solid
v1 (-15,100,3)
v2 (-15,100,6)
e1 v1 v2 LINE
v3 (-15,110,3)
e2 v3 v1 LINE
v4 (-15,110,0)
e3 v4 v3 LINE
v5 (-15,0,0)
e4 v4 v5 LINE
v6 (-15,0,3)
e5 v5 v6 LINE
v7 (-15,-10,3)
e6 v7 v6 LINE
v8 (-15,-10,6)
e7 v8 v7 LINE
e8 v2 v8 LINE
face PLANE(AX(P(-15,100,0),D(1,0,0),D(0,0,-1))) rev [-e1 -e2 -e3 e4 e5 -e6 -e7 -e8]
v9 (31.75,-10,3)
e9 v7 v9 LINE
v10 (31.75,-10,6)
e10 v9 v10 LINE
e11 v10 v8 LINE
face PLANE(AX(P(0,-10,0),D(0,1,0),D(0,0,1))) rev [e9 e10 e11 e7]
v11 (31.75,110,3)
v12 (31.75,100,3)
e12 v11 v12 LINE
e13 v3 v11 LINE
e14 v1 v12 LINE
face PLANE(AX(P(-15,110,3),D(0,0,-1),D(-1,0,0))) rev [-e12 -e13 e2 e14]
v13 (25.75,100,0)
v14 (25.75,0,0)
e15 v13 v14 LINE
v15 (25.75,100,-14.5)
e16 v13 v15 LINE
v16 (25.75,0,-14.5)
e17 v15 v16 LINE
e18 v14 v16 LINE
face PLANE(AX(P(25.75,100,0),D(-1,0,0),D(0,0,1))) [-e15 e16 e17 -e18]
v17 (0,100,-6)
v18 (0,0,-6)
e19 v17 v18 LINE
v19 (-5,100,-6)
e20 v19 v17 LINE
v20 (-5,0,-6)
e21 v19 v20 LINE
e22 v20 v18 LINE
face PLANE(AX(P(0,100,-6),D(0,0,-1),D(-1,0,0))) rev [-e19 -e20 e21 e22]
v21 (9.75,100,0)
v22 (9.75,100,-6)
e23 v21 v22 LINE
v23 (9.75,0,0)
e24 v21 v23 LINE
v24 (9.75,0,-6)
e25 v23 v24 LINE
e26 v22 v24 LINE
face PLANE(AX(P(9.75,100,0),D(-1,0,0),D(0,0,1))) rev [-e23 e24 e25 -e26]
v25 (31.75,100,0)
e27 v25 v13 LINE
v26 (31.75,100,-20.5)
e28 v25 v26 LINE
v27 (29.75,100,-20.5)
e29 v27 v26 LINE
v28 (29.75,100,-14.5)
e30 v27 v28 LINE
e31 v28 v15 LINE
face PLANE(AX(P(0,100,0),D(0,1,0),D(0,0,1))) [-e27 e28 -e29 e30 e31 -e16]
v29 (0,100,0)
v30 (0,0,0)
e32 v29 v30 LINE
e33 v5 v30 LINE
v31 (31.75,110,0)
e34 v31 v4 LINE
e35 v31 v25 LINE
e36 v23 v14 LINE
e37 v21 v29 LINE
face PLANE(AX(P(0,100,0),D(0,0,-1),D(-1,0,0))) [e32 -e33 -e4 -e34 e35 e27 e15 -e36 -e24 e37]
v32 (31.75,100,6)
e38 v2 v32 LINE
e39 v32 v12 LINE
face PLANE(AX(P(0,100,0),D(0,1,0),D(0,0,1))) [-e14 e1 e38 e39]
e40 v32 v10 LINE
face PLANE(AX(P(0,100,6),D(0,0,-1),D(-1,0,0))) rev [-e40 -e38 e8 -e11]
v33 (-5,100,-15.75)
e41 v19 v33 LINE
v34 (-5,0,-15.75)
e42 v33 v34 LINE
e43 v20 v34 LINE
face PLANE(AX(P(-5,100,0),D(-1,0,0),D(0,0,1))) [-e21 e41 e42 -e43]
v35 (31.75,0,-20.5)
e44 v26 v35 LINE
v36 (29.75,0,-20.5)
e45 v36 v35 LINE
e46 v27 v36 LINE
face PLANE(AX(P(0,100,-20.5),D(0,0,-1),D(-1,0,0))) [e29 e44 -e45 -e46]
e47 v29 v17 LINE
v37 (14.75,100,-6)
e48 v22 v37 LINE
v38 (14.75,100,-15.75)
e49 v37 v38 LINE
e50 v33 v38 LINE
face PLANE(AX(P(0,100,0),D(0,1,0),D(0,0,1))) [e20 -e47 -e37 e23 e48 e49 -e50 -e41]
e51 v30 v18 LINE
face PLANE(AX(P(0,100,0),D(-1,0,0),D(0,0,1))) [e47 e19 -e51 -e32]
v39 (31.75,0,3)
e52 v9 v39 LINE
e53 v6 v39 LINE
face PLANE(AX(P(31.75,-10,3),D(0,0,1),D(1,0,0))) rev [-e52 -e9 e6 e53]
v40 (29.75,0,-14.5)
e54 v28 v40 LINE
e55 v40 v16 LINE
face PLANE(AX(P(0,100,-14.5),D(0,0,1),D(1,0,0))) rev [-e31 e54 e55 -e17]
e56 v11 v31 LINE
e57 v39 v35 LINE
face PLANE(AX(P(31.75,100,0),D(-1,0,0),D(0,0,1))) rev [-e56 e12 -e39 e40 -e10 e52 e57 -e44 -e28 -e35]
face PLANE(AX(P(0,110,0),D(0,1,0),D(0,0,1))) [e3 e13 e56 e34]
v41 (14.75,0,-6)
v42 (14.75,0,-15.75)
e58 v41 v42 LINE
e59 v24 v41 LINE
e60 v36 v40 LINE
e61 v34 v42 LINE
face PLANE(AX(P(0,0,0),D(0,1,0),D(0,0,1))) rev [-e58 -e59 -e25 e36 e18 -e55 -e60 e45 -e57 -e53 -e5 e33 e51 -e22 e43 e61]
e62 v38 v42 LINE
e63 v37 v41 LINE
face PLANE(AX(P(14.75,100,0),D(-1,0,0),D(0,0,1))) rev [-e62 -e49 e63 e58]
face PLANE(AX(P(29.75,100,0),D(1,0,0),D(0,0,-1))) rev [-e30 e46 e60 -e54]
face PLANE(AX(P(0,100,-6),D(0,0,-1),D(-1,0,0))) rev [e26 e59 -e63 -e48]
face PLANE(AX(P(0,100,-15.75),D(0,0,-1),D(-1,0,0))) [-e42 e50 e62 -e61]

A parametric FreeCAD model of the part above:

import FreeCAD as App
import Part
import Sketcher
Q = App.Units.Quantity

doc = App.newDocument("Part")
body = doc.addObject("PartDesign::Body", "Body")

# Sketch on XZ plane
sketch1 = body.newObject("Sketcher::SketchObject", "Sketch")
sketch1.AttachmentSupport = (doc.getObject("XZ_Plane"), [""])
sketch1.MapMode = "FlatFace"
sketch1.addGeometry(Part.LineSegment(App.Vector(0, -6, 0), App.Vector(0, 0, 0)), False)
sketch1.addGeometry(Part.LineSegment(App.Vector(0, 0, 0), App.Vector(-15, 0, 0)), False)
sketch1.addGeometry(Part.LineSegment(App.Vector(-15, 0, 0), App.Vector(-15, 6, 0)), False)
sketch1.addGeometry(Part.LineSegment(App.Vector(-15, 6, 0), App.Vector(31.8, 6, 0)), False)
sketch1.addGeometry(Part.LineSegment(App.Vector(31.8, 6, 0), App.Vector(31.8, -20.5, 0)), False)
sketch1.addGeometry(Part.LineSegment(App.Vector(31.8, -20.5, 0), App.Vector(29.8, -20.5, 0)), False)
sketch1.addGeometry(Part.LineSegment(App.Vector(29.8, -20.5, 0), App.Vector(29.8, -14.5, 0)), False)
sketch1.addGeometry(Part.LineSegment(App.Vector(29.8, -14.5, 0), App.Vector(25.8, -14.5, 0)), False)
sketch1.addGeometry(Part.LineSegment(App.Vector(25.8, -14.5, 0), App.Vector(25.8, 0, 0)), False)
sketch1.addGeometry(Part.LineSegment(App.Vector(25.8, 0, 0), App.Vector(9.8, 0, 0)), False)
sketch1.addGeometry(Part.LineSegment(App.Vector(9.8, 0, 0), App.Vector(9.8, -6, 0)), False)
sketch1.addGeometry(Part.LineSegment(App.Vector(9.8, -6, 0), App.Vector(14.8, -6, 0)), False)
sketch1.addGeometry(Part.LineSegment(App.Vector(14.8, -6, 0), App.Vector(14.8, -15.8, 0)), False)
sketch1.addGeometry(Part.LineSegment(App.Vector(14.8, -15.8, 0), App.Vector(-5, -15.8, 0)), False)
sketch1.addGeometry(Part.LineSegment(App.Vector(-5, -15.8, 0), App.Vector(-5, -6, 0)), False)
sketch1.addGeometry(Part.LineSegment(App.Vector(-5, -6, 0), App.Vector(0, -6, 0)), False)
sketch1.addConstraint(Sketcher.Constraint("Coincident", 0, 2, 1, 1))
sketch1.addConstraint(Sketcher.Constraint("Coincident", 1, 2, 2, 1))
sketch1.addConstraint(Sketcher.Constraint("Coincident", 2, 2, 3, 1))
sketch1.addConstraint(Sketcher.Constraint("Coincident", 3, 2, 4, 1))
sketch1.addConstraint(Sketcher.Constraint("Coincident", 4, 2, 5, 1))
sketch1.addConstraint(Sketcher.Constraint("Coincident", 5, 2, 6, 1))
sketch1.addConstraint(Sketcher.Constraint("Coincident", 6, 2, 7, 1))
sketch1.addConstraint(Sketcher.Constraint("Coincident", 7, 2, 8, 1))
sketch1.addConstraint(Sketcher.Constraint("Coincident", 8, 2, 9, 1))
sketch1.addConstraint(Sketcher.Constraint("Coincident", 9, 2, 10, 1))
sketch1.addConstraint(Sketcher.Constraint("Coincident", 10, 2, 11, 1))
sketch1.addConstraint(Sketcher.Constraint("Coincident", 11, 2, 12, 1))
sketch1.addConstraint(Sketcher.Constraint("Coincident", 12, 2, 13, 1))
sketch1.addConstraint(Sketcher.Constraint("Coincident", 13, 2, 14, 1))
sketch1.addConstraint(Sketcher.Constraint("Coincident", 14, 2, 15, 1))
sketch1.addConstraint(Sketcher.Constraint("Coincident", 15, 2, 0, 1))
sketch1.addConstraint(Sketcher.Constraint("Vertical", 0))
sketch1.addConstraint(Sketcher.Constraint("Horizontal", 1))
sketch1.addConstraint(Sketcher.Constraint("Vertical", 2))
sketch1.addConstraint(Sketcher.Constraint("Horizontal", 3))
sketch1.addConstraint(Sketcher.Constraint("Vertical", 4))
sketch1.addConstraint(Sketcher.Constraint("Horizontal", 5))
sketch1.addConstraint(Sketcher.Constraint("Vertical", 6))
sketch1.addConstraint(Sketcher.Constraint("Horizontal", 7))
sketch1.addConstraint(Sketcher.Constraint("Vertical", 8))
sketch1.addConstraint(Sketcher.Constraint("Horizontal", 9))
sketch1.addConstraint(Sketcher.Constraint("Vertical", 10))
sketch1.addConstraint(Sketcher.Constraint("Horizontal", 11))
sketch1.addConstraint(Sketcher.Constraint("Vertical", 12))
sketch1.addConstraint(Sketcher.Constraint("Horizontal", 13))
sketch1.addConstraint(Sketcher.Constraint("Vertical", 14))
sketch1.addConstraint(Sketcher.Constraint("Horizontal", 15))
sketch1.addConstraint(Sketcher.Constraint("Coincident", 0, 2, -1, 1))
sketch1.addConstraint(Sketcher.Constraint("PointOnObject", 8, 2, -1))
sketch1.addConstraint(Sketcher.Constraint("Horizontal", 11, 2, 14, 2))
sketch1.addConstraint(Sketcher.Constraint("Equal", 11, 15))
sketch1.addConstraint(Sketcher.Constraint("Equal", 0, 2))
sketch1.addConstraint(Sketcher.Constraint("Equal", 2, 6))
sketch1.addConstraint(Sketcher.Constraint("DistanceX", 1, 2, 1, 1, Q("15 mm")))
sketch1.addConstraint(Sketcher.Constraint("DistanceX", 5, 2, 5, 1, Q("2 mm")))
sketch1.addConstraint(Sketcher.Constraint("DistanceX", 7, 2, 7, 1, Q("4 mm")))
sketch1.addConstraint(Sketcher.Constraint("DistanceX", 9, 2, 9, 1, Q("16 mm")))
sketch1.addConstraint(Sketcher.Constraint("DistanceX", 11, 1, 11, 2, Q("5 mm")))
sketch1.addConstraint(Sketcher.Constraint("DistanceY", 0, 1, 0, 2, Q("6 mm")))
sketch1.addConstraint(Sketcher.Constraint("DistanceY", 4, 2, 4, 1, Q("26.5 mm")))
sketch1.addConstraint(Sketcher.Constraint("DistanceX", 3, 1, 3, 2, Q("46.75 mm")))
sketch1.addConstraint(Sketcher.Constraint("DistanceY", 12, 2, 12, 1, Q("9.75 mm")))
pad1 = body.newObject("PartDesign::Pad", "Pad")
pad1.Profile = sketch1
pad1.Length = 100
pad1.Reversed = True

# Sketch on XZ plane
sketch2 = body.newObject("Sketcher::SketchObject", "Sketch001")
sketch2.AttachmentSupport = (doc.getObject("XZ_Plane"), [""])
sketch2.MapMode = "FlatFace"
sketch2.addGeometry(Part.LineSegment(App.Vector(-15, 6, 0), App.Vector(-15, 3, 0)), False)
sketch2.addGeometry(Part.LineSegment(App.Vector(-15, 3, 0), App.Vector(31.8, 3, 0)), False)
sketch2.addGeometry(Part.LineSegment(App.Vector(31.8, 3, 0), App.Vector(31.8, 6, 0)), False)
sketch2.addGeometry(Part.LineSegment(App.Vector(31.8, 6, 0), App.Vector(-15, 6, 0)), False)
sketch2.addConstraint(Sketcher.Constraint("Coincident", 0, 2, 1, 1))
sketch2.addConstraint(Sketcher.Constraint("Coincident", 1, 2, 2, 1))
sketch2.addConstraint(Sketcher.Constraint("Coincident", 2, 2, 3, 1))
sketch2.addConstraint(Sketcher.Constraint("Coincident", 3, 2, 0, 1))
sketch2.addConstraint(Sketcher.Constraint("Vertical", 0))
sketch2.addConstraint(Sketcher.Constraint("Horizontal", 1))
sketch2.addConstraint(Sketcher.Constraint("Vertical", 2))
sketch2.addConstraint(Sketcher.Constraint("Horizontal", 3))
sketch2.addConstraint(Sketcher.Constraint("DistanceY", 0, 2, 0, 1, Q("3 mm")))
sketch2.addConstraint(Sketcher.Constraint("DistanceX", 0, 2, -1, 1, Q("15 mm")))
sketch2.addConstraint(Sketcher.Constraint("DistanceY", -1, 1, 0, 2, Q("3 mm")))
sketch2.addConstraint(Sketcher.Constraint("DistanceX", 1, 1, 1, 2, Q("46.75 mm")))
pad2 = body.newObject("PartDesign::Pad", "Pad001")
pad2.Profile = sketch2
pad2.Length = 10

# Sketch on XZ plane
sketch3 = body.newObject("Sketcher::SketchObject", "Sketch002")
sketch3.AttachmentSupport = (doc.getObject("XZ_Plane"), [""])
sketch3.MapMode = "FlatFace"
sketch3.AttachmentOffset = App.Placement(App.Vector(0, 0, -100), App.Rotation())
sketch3.addGeometry(Part.LineSegment(App.Vector(-15, 0, 0), App.Vector(-15, 3, 0)), False)
sketch3.addGeometry(Part.LineSegment(App.Vector(-15, 3, 0), App.Vector(31.8, 3, 0)), False)
sketch3.addGeometry(Part.LineSegment(App.Vector(31.8, 3, 0), App.Vector(31.8, 0, 0)), False)
sketch3.addGeometry(Part.LineSegment(App.Vector(31.8, 0, 0), App.Vector(-15, 0, 0)), False)
sketch3.addConstraint(Sketcher.Constraint("Coincident", 0, 2, 1, 1))
sketch3.addConstraint(Sketcher.Constraint("Coincident", 1, 2, 2, 1))
sketch3.addConstraint(Sketcher.Constraint("Coincident", 2, 2, 3, 1))
sketch3.addConstraint(Sketcher.Constraint("Coincident", 3, 2, 0, 1))
sketch3.addConstraint(Sketcher.Constraint("Vertical", 0))
sketch3.addConstraint(Sketcher.Constraint("Horizontal", 1))
sketch3.addConstraint(Sketcher.Constraint("Vertical", 2))
sketch3.addConstraint(Sketcher.Constraint("Horizontal", 3))
sketch3.addConstraint(Sketcher.Constraint("PointOnObject", 2, 2, -1))
sketch3.addConstraint(Sketcher.Constraint("DistanceY", 0, 1, 0, 2, Q("3 mm")))
sketch3.addConstraint(Sketcher.Constraint("DistanceX", 0, 2, -1, 1, Q("15 mm")))
sketch3.addConstraint(Sketcher.Constraint("DistanceX", 1, 1, 1, 2, Q("46.75 mm")))
pad3 = body.newObject("PartDesign::Pad", "Pad002")
pad3.Profile = sketch3
pad3.Length = 10
pad3.Reversed = True

doc.recompute()
